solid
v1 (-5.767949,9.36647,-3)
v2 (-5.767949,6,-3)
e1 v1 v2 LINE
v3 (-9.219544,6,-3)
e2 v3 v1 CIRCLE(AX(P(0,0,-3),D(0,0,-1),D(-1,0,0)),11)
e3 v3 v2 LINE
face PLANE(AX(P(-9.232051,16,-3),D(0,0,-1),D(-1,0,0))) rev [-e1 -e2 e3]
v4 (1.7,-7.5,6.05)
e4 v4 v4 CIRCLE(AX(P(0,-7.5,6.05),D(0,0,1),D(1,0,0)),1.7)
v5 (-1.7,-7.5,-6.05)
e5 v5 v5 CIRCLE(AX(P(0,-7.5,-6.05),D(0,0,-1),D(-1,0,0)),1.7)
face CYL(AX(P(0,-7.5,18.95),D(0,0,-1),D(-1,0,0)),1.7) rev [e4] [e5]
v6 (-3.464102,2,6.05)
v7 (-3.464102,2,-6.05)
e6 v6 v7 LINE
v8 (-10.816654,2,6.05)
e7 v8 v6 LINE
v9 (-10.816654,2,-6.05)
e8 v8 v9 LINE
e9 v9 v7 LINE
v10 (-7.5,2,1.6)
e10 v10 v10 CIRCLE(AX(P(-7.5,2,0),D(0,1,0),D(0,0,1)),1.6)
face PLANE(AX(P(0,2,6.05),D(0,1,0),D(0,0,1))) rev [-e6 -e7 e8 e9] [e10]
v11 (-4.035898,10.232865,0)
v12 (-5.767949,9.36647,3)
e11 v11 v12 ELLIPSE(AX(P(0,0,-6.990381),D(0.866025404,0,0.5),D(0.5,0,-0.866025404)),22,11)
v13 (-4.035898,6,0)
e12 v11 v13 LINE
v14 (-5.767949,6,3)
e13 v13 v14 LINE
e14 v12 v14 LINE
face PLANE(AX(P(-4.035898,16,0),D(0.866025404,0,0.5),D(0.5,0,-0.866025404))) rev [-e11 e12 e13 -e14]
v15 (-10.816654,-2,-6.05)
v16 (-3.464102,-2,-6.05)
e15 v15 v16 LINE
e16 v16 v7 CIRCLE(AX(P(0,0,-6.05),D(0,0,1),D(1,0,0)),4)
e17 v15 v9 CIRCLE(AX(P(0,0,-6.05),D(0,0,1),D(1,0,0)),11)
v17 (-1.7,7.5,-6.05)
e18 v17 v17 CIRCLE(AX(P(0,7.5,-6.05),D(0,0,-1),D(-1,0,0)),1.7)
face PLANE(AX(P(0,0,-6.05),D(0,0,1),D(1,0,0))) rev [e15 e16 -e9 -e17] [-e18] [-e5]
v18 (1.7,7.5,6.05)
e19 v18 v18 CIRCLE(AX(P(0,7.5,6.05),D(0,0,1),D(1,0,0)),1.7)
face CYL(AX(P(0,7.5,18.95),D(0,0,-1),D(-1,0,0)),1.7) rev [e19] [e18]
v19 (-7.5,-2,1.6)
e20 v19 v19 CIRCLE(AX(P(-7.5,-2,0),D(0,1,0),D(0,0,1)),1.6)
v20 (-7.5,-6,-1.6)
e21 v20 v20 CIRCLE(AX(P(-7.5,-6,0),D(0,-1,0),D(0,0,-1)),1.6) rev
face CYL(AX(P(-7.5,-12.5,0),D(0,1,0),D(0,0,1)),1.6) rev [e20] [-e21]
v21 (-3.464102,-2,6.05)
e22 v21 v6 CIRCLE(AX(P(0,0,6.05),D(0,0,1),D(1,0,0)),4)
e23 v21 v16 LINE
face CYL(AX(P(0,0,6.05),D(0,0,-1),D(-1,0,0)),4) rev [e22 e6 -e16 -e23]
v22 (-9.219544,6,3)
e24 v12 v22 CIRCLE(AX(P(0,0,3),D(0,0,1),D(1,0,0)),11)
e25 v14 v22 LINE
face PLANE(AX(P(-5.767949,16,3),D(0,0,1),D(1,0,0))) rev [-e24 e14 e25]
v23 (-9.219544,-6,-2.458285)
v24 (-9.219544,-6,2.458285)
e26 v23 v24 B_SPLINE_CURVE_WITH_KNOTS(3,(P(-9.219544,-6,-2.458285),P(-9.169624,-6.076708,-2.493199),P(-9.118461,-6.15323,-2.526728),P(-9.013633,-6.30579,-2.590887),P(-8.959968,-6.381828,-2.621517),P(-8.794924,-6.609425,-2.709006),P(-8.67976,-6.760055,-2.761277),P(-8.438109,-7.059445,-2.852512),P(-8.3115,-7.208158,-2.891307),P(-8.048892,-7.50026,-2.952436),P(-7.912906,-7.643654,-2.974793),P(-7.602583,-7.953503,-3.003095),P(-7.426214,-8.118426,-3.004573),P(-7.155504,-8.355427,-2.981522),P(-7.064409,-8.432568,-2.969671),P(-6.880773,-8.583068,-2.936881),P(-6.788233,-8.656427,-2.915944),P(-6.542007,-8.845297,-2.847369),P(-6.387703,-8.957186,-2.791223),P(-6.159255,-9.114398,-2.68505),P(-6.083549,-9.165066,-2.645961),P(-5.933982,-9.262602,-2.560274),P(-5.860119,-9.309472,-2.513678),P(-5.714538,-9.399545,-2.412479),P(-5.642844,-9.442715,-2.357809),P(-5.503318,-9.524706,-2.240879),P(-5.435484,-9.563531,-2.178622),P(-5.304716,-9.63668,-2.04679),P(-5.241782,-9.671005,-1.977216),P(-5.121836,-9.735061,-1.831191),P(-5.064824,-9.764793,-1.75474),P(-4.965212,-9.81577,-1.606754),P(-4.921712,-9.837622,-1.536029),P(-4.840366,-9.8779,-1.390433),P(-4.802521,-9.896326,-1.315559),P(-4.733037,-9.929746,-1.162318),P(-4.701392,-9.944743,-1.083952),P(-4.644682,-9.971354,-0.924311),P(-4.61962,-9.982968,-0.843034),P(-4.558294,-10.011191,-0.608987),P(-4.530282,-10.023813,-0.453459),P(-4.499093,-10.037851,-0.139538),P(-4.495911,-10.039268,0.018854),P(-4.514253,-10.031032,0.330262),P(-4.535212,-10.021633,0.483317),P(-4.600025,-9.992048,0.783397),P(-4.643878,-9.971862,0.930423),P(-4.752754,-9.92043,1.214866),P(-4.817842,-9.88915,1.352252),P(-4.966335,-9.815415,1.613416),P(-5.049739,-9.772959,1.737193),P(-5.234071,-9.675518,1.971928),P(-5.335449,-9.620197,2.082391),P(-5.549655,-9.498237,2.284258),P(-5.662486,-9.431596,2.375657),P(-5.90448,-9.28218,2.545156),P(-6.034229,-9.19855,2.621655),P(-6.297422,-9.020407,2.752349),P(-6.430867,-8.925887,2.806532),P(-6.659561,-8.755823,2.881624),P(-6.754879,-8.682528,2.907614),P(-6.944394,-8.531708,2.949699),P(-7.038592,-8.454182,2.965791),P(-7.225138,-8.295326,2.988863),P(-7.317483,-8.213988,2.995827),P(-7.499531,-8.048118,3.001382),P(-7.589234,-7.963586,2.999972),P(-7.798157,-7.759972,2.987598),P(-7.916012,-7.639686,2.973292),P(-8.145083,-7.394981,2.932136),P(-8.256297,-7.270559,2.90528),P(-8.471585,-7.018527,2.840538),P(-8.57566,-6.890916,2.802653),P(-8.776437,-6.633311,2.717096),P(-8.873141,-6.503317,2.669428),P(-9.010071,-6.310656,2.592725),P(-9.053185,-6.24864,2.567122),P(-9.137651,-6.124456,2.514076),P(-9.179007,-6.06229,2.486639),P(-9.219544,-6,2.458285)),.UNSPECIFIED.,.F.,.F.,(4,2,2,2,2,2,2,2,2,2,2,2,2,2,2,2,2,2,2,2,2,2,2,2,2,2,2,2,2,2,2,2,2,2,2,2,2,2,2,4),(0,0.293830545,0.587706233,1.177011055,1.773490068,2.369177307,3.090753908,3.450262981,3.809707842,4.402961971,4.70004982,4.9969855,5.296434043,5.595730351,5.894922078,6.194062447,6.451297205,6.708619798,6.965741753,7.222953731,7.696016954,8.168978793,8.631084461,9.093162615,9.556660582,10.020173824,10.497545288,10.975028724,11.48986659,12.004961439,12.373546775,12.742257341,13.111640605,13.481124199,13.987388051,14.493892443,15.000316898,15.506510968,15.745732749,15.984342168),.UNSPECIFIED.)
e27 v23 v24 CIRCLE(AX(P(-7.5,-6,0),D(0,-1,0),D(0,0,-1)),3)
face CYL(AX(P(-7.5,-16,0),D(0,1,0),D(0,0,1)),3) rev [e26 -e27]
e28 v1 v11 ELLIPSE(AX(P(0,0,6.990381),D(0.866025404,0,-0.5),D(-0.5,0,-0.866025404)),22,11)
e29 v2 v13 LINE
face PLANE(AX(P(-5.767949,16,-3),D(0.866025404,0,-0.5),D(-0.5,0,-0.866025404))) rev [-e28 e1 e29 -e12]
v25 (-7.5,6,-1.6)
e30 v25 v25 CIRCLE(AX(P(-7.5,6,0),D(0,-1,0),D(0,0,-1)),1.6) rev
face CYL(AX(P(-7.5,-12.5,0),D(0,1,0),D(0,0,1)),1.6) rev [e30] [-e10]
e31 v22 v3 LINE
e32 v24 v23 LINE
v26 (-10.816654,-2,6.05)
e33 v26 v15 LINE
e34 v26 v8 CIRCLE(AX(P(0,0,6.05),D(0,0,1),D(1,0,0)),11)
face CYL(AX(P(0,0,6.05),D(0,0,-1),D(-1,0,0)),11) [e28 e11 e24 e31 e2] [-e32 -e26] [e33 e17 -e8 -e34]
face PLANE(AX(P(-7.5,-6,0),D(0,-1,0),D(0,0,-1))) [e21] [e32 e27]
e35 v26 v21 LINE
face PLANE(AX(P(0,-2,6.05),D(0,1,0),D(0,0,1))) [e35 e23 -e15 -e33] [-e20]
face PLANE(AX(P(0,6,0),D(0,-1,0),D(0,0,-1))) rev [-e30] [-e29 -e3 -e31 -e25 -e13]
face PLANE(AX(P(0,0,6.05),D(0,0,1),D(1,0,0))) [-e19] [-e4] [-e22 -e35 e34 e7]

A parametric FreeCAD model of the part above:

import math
import FreeCAD as App
import Part
import Sketcher
from FreeCAD import Vector
Q = App.Units.Quantity


def add_polygon(sketch, points):
    """Adds a closed chain of lines whose ends are joined by coincident constraints."""
    first, n = sketch.GeometryCount, len(points)
    for a, b in zip(points, points[1:] + points[:1]):
        sketch.addGeometry(Part.LineSegment(App.Vector(*a, 0), App.Vector(*b, 0)), False)
    for i in range(n):
        sketch.addConstraint(Sketcher.Constraint("Coincident", first + i, 2, first + (i + 1) % n, 1))

doc = App.newDocument("Part")
params = doc.addObject("Spreadsheet::Sheet", "Params")
for row, (alias, value) in enumerate([
    ("sketch1_radius", "4 mm"),
    ("sketch1_radius2", "11 mm"),
    ("pad1_length", "12.1 mm"),
    ("sketch2_diameter", "3.2 mm"),
    ("pocket1_length", "25 mm"),
    ("sketch3_diameter", "3.4 mm"),
    ("pocket2_length", "25 mm"),
    ("sketch4_diameter", "6 mm"),
    ("pocket3_length", "10 mm"),
    ("pocket4_length", "10 mm"),
], start=1):
    params.set(f"A{row}", alias)
    params.set(f"B{row}", "=" + value)
    params.setAlias(f"B{row}", alias)

body = doc.addObject("PartDesign::Body", "Body")

sketch1 = body.newObject("Sketcher::SketchObject", "Sketch")
sketch1.AttachmentSupport = (doc.getObject("XY_Plane"), [""])
sketch1.MapMode = "FlatFace"
sketch1.addGeometry(Part.ArcOfCircle(Part.Circle(Vector(0, 0, 0), Vector(0, 0, 1), 4), math.radians(0), math.radians(150)), False)
sketch1.addGeometry(Part.ArcOfCircle(Part.Circle(Vector(0, 0, 0), Vector(0, 0, 1), 4), math.radians(-150), math.radians(0)), False)
sketch1.addGeometry(Part.LineSegment(Vector(-3.5, -2, 0), Vector(-10.8, -2, 0)), False)
sketch1.addGeometry(Part.ArcOfCircle(Part.Circle(Vector(0, 0, 0), Vector(0, 0, 1), 11), math.radians(-170), math.radians(0)), False)
sketch1.addGeometry(Part.ArcOfCircle(Part.Circle(Vector(0, 0, 0), Vector(0, 0, 1), 11), math.radians(0), math.radians(170)), False)
sketch1.addGeometry(Part.LineSegment(Vector(-10.8, 2, 0), Vector(-3.5, 2, 0)), False)
sketch1.addConstraint(Sketcher.Constraint("Tangent", 0, 1, 1, 2))
sketch1.addConstraint(Sketcher.Constraint("Coincident", 1, 1, 2, 1))
sketch1.addConstraint(Sketcher.Constraint("Coincident", 2, 2, 3, 1))
sketch1.addConstraint(Sketcher.Constraint("Tangent", 3, 2, 4, 1))
sketch1.addConstraint(Sketcher.Constraint("Coincident", 4, 2, 5, 1))
sketch1.addConstraint(Sketcher.Constraint("Coincident", 5, 2, 0, 2))
sketch1.addConstraint(Sketcher.Constraint("Horizontal", 2))
sketch1.addConstraint(Sketcher.Constraint("Horizontal", 5))
sketch1.addConstraint(Sketcher.Constraint("Coincident", 0, 3, -1, 1))
sketch1.addConstraint(Sketcher.Constraint("Coincident", 3, 3, -1, 1))
sketch1.addConstraint(Sketcher.Constraint("Equal", 0, 1))
sketch1.addConstraint(Sketcher.Constraint("Equal", 3, 4))
sketch1.addConstraint(Sketcher.Constraint("PointOnObject", 0, 1, -1))
sketch1.addConstraint(Sketcher.Constraint("PointOnObject", 3, 2, -1))
sketch1.addConstraint(Sketcher.Constraint("Vertical", 2, 2, 4, 2))
sketch1.addConstraint(Sketcher.Constraint("Radius", 0, 4.0))
sketch1.addConstraint(Sketcher.Constraint("Radius", 3, 11.0))
sketch1.addConstraint(Sketcher.Constraint("DistanceY", 1, 1, -1, 1, 2.0))
sketch1.setExpression("Constraints[15]", "Params.sketch1_radius")
sketch1.setExpression("Constraints[16]", "Params.sketch1_radius2")
pad1 = body.newObject("PartDesign::Pad", "Pad")
pad1.Profile = sketch1
pad1.setExpression("Length", "Params.pad1_length")
pad1.Midplane = True

sketch2 = body.newObject("Sketcher::SketchObject", "Sketch001")
sketch2.AttachmentSupport = (doc.getObject("XZ_Plane"), [""])
sketch2.MapMode = "FlatFace"
sketch2.addGeometry(Part.Circle(Vector(-7.5, 0, 0), Vector(0, 0, 1), 1.6), False)
sketch2.addConstraint(Sketcher.Constraint("PointOnObject", 0, 3, -1))
sketch2.addConstraint(Sketcher.Constraint("Diameter", 0, 3.2))
sketch2.addConstraint(Sketcher.Constraint("DistanceX", 0, 3, -1, 1, 7.5))
sketch2.setExpression("Constraints[1]", "Params.sketch2_diameter")
pocket1 = body.newObject("PartDesign::Pocket", "Pocket")
pocket1.Profile = sketch2
pocket1.setExpression("Length", "Params.pocket1_length")
pocket1.Midplane = True

sketch3 = body.newObject("Sketcher::SketchObject", "Sketch002")
sketch3.AttachmentSupport = (doc.getObject("XY_Plane"), [""])
sketch3.MapMode = "FlatFace"
sketch3.AttachmentOffset = App.Placement(Vector(0, 0, -6.05), App.Rotation())
sketch3.addGeometry(Part.Circle(Vector(0, 7.5, 0), Vector(0, 0, 1), 1.7), False)
sketch3.addGeometry(Part.Circle(Vector(0, -7.5, 0), Vector(0, 0, 1), 1.7), False)
sketch3.addConstraint(Sketcher.Constraint("Equal", 0, 1))
sketch3.addConstraint(Sketcher.Constraint("Symmetric", 0, 3, 1, 3, -1, 1))
sketch3.addConstraint(Sketcher.Constraint("PointOnObject", 0, 3, -2))
sketch3.addConstraint(Sketcher.Constraint("Diameter", 0, 3.4))
sketch3.addConstraint(Sketcher.Constraint("DistanceY", 1, 3, 0, 3, 15.0))
sketch3.setExpression("Constraints[3]", "Params.sketch3_diameter")
pocket2 = body.newObject("PartDesign::Pocket", "Pocket001")
pocket2.Profile = sketch3
pocket2.setExpression("Length", "Params.pocket2_length")
pocket2.Reversed = True

sketch4 = body.newObject("Sketcher::SketchObject", "Sketch003")
sketch4.AttachmentSupport = (doc.getObject("XZ_Plane"), [""])
sketch4.MapMode = "FlatFace"
sketch4.AttachmentOffset = App.Placement(Vector(0, 0, 6), App.Rotation())
sketch4.addGeometry(Part.Circle(Vector(-7.5, 0, 0), Vector(0, 0, 1), 3), False)
sketch4.addConstraint(Sketcher.Constraint("PointOnObject", 0, 3, -1))
sketch4.addConstraint(Sketcher.Constraint("Diameter", 0, 6.0))
sketch4.addConstraint(Sketcher.Constraint("DistanceX", 0, 3, -1, 1, 7.5))
sketch4.setExpression("Constraints[1]", "Params.sketch4_diameter")
pocket3 = body.newObject("PartDesign::Pocket", "Pocket002")
pocket3.Profile = sketch4
pocket3.setExpression("Length", "Params.pocket3_length")
pocket3.Reversed = True

sketch5 = body.newObject("Sketcher::SketchObject", "Sketch004")
sketch5.AttachmentSupport = (doc.getObject("XZ_Plane"), [""])
sketch5.MapMode = "FlatFace"
sketch5.AttachmentOffset = App.Placement(Vector(0, 0, -6), App.Rotation())
add_polygon(sketch5, [(-11, 0), (-9.2, -3), (-5.8, -3), (-4, 0), (-5.8, 3), (-9.2, 3)])
sketch5.addConstraint(Sketcher.Constraint("Horizontal", 1))
sketch5.addConstraint(Sketcher.Constraint("Horizontal", 4))
sketch5.addConstraint(Sketcher.Constraint("Symmetric", 1, 2, 3, 2, -1))
sketch5.addConstraint(Sketcher.Constraint("PointOnObject", 2, 2, -1))
sketch5.addConstraint(Sketcher.Constraint("PointOnObject", 5, 2, -1))
sketch5.addConstraint(Sketcher.Constraint("Parallel", 0, 3))
sketch5.addConstraint(Sketcher.Constraint("Parallel", 2, 5))
sketch5.addConstraint(Sketcher.Constraint("Angle", 0, Q("-60 deg")))
sketch5.addConstraint(Sketcher.Constraint("DistanceY", 0, 2, -1, 1, 3.0))
sketch5.addConstraint(Sketcher.Constraint("DistanceX", 1, 1, 1, 2, 3.464102))
sketch5.addConstraint(Sketcher.Constraint("DistanceX", 2, 2, -1, 1, 4.035898))
pocket4 = body.newObject("PartDesign::Pocket", "Pocket003")
pocket4.Profile = sketch5
pocket4.setExpression("Length", "Params.pocket4_length")

doc.recompute()
